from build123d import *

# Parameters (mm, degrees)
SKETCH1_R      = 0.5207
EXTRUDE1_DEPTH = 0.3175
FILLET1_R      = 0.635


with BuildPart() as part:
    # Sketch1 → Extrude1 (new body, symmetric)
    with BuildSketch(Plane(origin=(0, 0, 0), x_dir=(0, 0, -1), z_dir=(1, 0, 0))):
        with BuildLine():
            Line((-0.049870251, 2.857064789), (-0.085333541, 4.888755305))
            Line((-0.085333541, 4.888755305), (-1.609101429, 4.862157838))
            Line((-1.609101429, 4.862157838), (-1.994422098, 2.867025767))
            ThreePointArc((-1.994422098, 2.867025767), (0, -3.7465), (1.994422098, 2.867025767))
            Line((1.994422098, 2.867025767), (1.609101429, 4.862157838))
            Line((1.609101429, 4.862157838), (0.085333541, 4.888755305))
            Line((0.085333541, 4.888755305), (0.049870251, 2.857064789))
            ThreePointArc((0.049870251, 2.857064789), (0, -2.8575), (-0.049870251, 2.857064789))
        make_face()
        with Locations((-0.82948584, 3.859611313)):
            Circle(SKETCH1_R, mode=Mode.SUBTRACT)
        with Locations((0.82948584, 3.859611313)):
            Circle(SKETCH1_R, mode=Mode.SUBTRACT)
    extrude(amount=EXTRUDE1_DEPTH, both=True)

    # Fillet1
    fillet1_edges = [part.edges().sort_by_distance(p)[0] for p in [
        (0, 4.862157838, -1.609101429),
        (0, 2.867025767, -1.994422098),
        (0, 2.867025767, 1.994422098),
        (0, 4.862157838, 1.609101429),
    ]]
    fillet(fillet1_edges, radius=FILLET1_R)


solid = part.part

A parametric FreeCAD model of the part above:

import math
import FreeCAD as App
import Part
import Sketcher

V = App.Vector
Q = App.Units.Quantity


def edges_at(feature, points):
    """Names of the edges that pass closest to the given points."""
    edges = feature.Shape.Edges
    near = lambda p: min(range(len(edges)), key=lambda i: edges[i].distToShape(Part.Vertex(*p))[0])
    return sorted({f"Edge{near(p) + 1}" for p in points})

doc = App.newDocument("Part")
body = doc.addObject("PartDesign::Body", "Body")

# Sketch on YZ plane
sketch1 = doc.addObject("Sketcher::SketchObject", "Sketch")
body.addObject(sketch1)
sketch1.AttachmentSupport = (doc.YZ_Plane, [""])
sketch1.MapMode = "FlatFace"
sketch1.addGeometry(Part.LineSegment(V(2.86, 0.05, 0), V(4.89, 0.09, 0)), False)
sketch1.addGeometry(Part.LineSegment(V(4.89, 0.09, 0), V(4.86, 1.61, 0)), False)
sketch1.addGeometry(Part.LineSegment(V(4.86, 1.61, 0), V(2.87, 1.99, 0)), False)
sketch1.addGeometry(Part.ArcOfCircle(Part.Circle(V(-0.14, 0, 0), V(0, 0, 1), 3.61), math.radians(34), math.radians(326)), False)
sketch1.addGeometry(Part.LineSegment(V(2.87, -1.99, 0), V(4.86, -1.61, 0)), False)
sketch1.addGeometry(Part.LineSegment(V(4.86, -1.61, 0), V(4.89, -0.09, 0)), False)
sketch1.addGeometry(Part.LineSegment(V(4.89, -0.09, 0), V(2.86, -0.05, 0)), False)
sketch1.addGeometry(Part.ArcOfCircle(Part.Circle(V(0, 0, 0), V(0, 0, 1), 2.86), math.radians(1), math.radians(359)), False)
sketch1.addGeometry(Part.Circle(V(3.86, 0.83, 0), V(0, 0, 1), 0.52), False)
sketch1.addGeometry(Part.Circle(V(3.86, -0.83, 0), V(0, 0, 1), 0.52), False)
sketch1.addConstraint(Sketcher.Constraint("Coincident", 0, 2, 1, 1))
sketch1.addConstraint(Sketcher.Constraint("Coincident", 1, 2, 2, 1))
sketch1.addConstraint(Sketcher.Constraint("Coincident", 2, 2, 3, 1))
sketch1.addConstraint(Sketcher.Constraint("Coincident", 3, 2, 4, 1))
sketch1.addConstraint(Sketcher.Constraint("Coincident", 4, 2, 5, 1))
sketch1.addConstraint(Sketcher.Constraint("Coincident", 5, 2, 6, 1))
sketch1.addConstraint(Sketcher.Constraint("Coincident", 6, 2, 7, 2))
sketch1.addConstraint(Sketcher.Constraint("Coincident", 7, 1, 0, 1))
sketch1.addConstraint(Sketcher.Constraint("Coincident", 7, 3, -1, 1))
sketch1.addConstraint(Sketcher.Constraint("Equal", 8, 9))
sketch1.addConstraint(Sketcher.Constraint("Symmetric", 8, 3, 9, 3, -1))
sketch1.addConstraint(Sketcher.Constraint("Symmetric", 2, 2, 3, 2, -1))
sketch1.addConstraint(Sketcher.Constraint("Symmetric", 1, 2, 4, 2, -1))
sketch1.addConstraint(Sketcher.Constraint("Symmetric", 0, 2, 5, 2, -1))
sketch1.addConstraint(Sketcher.Constraint("Perpendicular", 0, 1))
sketch1.addConstraint(Sketcher.Constraint("Perpendicular", 5, 6))
sketch1.addConstraint(Sketcher.Constraint("Equal", 0, 2))
sketch1.addConstraint(Sketcher.Constraint("Diameter", 8, Q("0.041 in")))
sketch1.addConstraint(Sketcher.Constraint("Angle", 0, Q("1 deg")))
sketch1.addConstraint(Sketcher.Constraint("Radius", 7, Q("0.1125 in")))
sketch1.addConstraint(Sketcher.Constraint("Distance", 0, Q("0.08 in")))
sketch1.addConstraint(Sketcher.Constraint("Distance", 1, Q("0.06 in")))
sketch1.addConstraint(Sketcher.Constraint("Radius", 3, Q("3.607489 mm")))
sketch1.addConstraint(Sketcher.Constraint("DistanceY", -1, 1, 1, 2, Q("1.609101 mm")))
sketch1.addConstraint(Sketcher.Constraint("DistanceX", 3, 3, -1, 1, Q("0.139011 mm")))
sketch1.addConstraint(Sketcher.Constraint("DistanceX", -1, 1, 8, 3, Q("3.859611 mm")))
sketch1.addConstraint(Sketcher.Constraint("DistanceY", 9, 3, 8, 3, Q("1.658972 mm")))
pad1 = doc.addObject("PartDesign::Pad", "Pad")
body.addObject(pad1)
pad1.Profile = sketch1
pad1.Length = Q("0.025 in")
pad1.Midplane = True
doc.recompute()

fillet = doc.addObject("PartDesign::Fillet", "Fillet")
body.addObject(fillet)
fillet.Base = (pad1, edges_at(pad1, [
    (0, 4.862, -1.609),
    (0, 2.867, -1.994),
    (0, 2.867, 1.994),
    (0, 4.862, 1.609),
]))
fillet.Radius = Q("0.025 in")

doc.recompute()
